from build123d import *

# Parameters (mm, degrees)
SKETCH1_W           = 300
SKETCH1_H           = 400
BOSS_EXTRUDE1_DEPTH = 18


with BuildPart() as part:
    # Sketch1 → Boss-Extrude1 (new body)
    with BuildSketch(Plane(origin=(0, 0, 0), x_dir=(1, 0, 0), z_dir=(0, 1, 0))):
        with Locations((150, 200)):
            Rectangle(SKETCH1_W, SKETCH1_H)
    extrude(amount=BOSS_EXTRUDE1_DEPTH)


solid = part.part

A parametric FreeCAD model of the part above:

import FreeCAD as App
import Part
import Sketcher
from FreeCAD import Vector
Q = App.Units.Quantity


def add_polygon(sketch, points):
    """Adds a closed chain of lines whose ends are joined by coincident constraints."""
    first, n = sketch.GeometryCount, len(points)
    for a, b in zip(points, points[1:] + points[:1]):
        sketch.addGeometry(Part.LineSegment(App.Vector(*a, 0), App.Vector(*b, 0)), False)
    for i in range(n):
        sketch.addConstraint(Sketcher.Constraint("Coincident", first + i, 2, first + (i + 1) % n, 1))

doc = App.newDocument("Part")
body = doc.addObject("PartDesign::Body", "Body")

# Sketch on XZ plane
sketch1 = body.newObject("Sketcher::SketchObject", "Sketch")
sketch1.AttachmentSupport = (doc.getObject("XZ_Plane"), [""])
sketch1.MapMode = "FlatFace"
add_polygon(sketch1, [(0, -400), (0, 0), (300, 0), (300, -400)])  # lines 0-3
sketch1.addConstraint(Sketcher.Constraint("Vertical", 0))
sketch1.addConstraint(Sketcher.Constraint("Horizontal", 1))
sketch1.addConstraint(Sketcher.Constraint("Vertical", 2))
sketch1.addConstraint(Sketcher.Constraint("Horizontal", 3))
sketch1.addConstraint(Sketcher.Constraint("Coincident", 0, 2, -1, 1))
sketch1.addConstraint(Sketcher.Constraint("DistanceX", 1, 1, 1, 2, Q("300 mm")))
sketch1.addConstraint(Sketcher.Constraint("DistanceY", 0, 1, 0, 2, Q("400 mm")))
pad1 = body.newObject("PartDesign::Pad", "Pad")
pad1.Profile = sketch1
pad1.Length = 18
pad1.Reversed = True

doc.recompute()
